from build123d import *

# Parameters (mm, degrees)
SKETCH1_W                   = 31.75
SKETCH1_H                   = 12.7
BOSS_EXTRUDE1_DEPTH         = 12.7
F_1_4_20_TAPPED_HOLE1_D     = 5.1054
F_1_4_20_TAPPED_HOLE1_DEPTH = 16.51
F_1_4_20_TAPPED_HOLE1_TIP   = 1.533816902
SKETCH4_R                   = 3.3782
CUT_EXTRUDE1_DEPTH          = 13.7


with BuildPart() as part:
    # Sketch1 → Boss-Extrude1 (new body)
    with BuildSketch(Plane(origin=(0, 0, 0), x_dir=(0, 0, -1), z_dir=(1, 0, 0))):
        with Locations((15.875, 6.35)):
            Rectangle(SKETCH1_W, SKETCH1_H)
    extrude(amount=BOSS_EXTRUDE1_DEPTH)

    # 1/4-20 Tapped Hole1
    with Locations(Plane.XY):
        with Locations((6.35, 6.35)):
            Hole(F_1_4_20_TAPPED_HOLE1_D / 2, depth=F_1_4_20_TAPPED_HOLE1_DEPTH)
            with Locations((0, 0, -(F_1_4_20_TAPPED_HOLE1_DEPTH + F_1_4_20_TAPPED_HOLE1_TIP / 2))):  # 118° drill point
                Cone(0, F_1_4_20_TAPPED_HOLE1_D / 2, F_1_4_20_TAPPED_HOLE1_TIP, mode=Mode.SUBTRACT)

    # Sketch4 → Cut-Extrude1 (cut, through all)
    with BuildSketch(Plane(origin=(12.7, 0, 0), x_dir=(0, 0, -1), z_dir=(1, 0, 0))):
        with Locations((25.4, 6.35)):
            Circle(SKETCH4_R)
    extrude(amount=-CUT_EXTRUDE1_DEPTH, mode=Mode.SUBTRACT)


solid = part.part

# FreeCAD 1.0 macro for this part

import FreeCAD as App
import Part
import Sketcher
from FreeCAD import Vector
Q = App.Units.Quantity

doc = App.newDocument("Part")
body = doc.addObject("PartDesign::Body", "Body")

sketch1 = body.newObject("Sketcher::SketchObject", "Sketch")
sketch1.AttachmentSupport = (doc.getObject("YZ_Plane"), [""])
sketch1.MapMode = "FlatFace"
sketch1.addGeometry([
    Part.LineSegment(Vector(12.7, 0, 0), Vector(0, 0, 0)),
    Part.LineSegment(Vector(0, 0, 0), Vector(0, -31.75, 0)),
    Part.LineSegment(Vector(0, -31.75, 0), Vector(12.7, -31.75, 0)),
    Part.LineSegment(Vector(12.7, -31.75, 0), Vector(12.7, 0, 0)),
], False)
sketch1.addConstraint([
    Sketcher.Constraint("Coincident", 0, 2, 1, 1),
    Sketcher.Constraint("Coincident", 1, 2, 2, 1),
    Sketcher.Constraint("Coincident", 2, 2, 3, 1),
    Sketcher.Constraint("Coincident", 3, 2, 0, 1),
    Sketcher.Constraint("Horizontal", 0),
    Sketcher.Constraint("Vertical", 1),
    Sketcher.Constraint("Horizontal", 2),
    Sketcher.Constraint("Vertical", 3),
    Sketcher.Constraint("Coincident", 0, 2, -1, 1),
    Sketcher.Constraint("DistanceX", 0, 2, 0, 1, Q("0.5 in")),
    Sketcher.Constraint("DistanceY", 1, 2, 1, 1, Q("1.25 in")),
])
pad1 = body.newObject("PartDesign::Pad", "Pad")
pad1.Profile = sketch1
pad1.Length = Q("0.5 in")

sketch2 = body.newObject("Sketcher::SketchObject", "Sketch001")
sketch2.AttachmentSupport = (doc.getObject("XY_Plane"), [""])
sketch2.MapMode = "FlatFace"
sketch2.addGeometry(Part.Circle(Vector(6.35, 6.35, 0), Vector(0, 0, 1), 2.5527), False)
sketch2.addConstraint([
    Sketcher.Constraint("Diameter", 0, Q("0.201 in")),
    Sketcher.Constraint("DistanceX", -1, 1, 0, 3, Q("0.25 in")),
    Sketcher.Constraint("DistanceY", -1, 1, 0, 3, Q("0.25 in")),
])
doc.recompute()
hole = body.newObject("PartDesign::Hole", "Hole")
hole.Profile = sketch2
hole.ThreadType = "None"
hole.Diameter = Q("0.201 in")
hole.DepthType = "Dimension"
hole.Depth = Q("0.65 in")
hole.DrillPoint = "Angled"
hole.DrillPointAngle = 118

sketch3 = body.newObject("Sketcher::SketchObject", "Sketch002")
sketch3.AttachmentSupport = (doc.getObject("YZ_Plane"), [""])
sketch3.MapMode = "FlatFace"
sketch3.AttachmentOffset = App.Placement(Vector(0, 0, 0.5 * 25.4), App.Rotation())
sketch3.addGeometry(Part.Circle(Vector(6.35, -25.4, 0), Vector(0, 0, 1), 3.3782), False)
sketch3.addConstraint([
    Sketcher.Constraint("Diameter", 0, Q("0.266 in")),
    Sketcher.Constraint("DistanceY", 0, 3, -1, 1, Q("1 in")),
    Sketcher.Constraint("DistanceX", -1, 1, 0, 3, Q("0.25 in")),
])
pocket1 = body.newObject("PartDesign::Pocket", "Pocket")
pocket1.Profile = sketch3
pocket1.Type = "ThroughAll"

doc.recompute()
